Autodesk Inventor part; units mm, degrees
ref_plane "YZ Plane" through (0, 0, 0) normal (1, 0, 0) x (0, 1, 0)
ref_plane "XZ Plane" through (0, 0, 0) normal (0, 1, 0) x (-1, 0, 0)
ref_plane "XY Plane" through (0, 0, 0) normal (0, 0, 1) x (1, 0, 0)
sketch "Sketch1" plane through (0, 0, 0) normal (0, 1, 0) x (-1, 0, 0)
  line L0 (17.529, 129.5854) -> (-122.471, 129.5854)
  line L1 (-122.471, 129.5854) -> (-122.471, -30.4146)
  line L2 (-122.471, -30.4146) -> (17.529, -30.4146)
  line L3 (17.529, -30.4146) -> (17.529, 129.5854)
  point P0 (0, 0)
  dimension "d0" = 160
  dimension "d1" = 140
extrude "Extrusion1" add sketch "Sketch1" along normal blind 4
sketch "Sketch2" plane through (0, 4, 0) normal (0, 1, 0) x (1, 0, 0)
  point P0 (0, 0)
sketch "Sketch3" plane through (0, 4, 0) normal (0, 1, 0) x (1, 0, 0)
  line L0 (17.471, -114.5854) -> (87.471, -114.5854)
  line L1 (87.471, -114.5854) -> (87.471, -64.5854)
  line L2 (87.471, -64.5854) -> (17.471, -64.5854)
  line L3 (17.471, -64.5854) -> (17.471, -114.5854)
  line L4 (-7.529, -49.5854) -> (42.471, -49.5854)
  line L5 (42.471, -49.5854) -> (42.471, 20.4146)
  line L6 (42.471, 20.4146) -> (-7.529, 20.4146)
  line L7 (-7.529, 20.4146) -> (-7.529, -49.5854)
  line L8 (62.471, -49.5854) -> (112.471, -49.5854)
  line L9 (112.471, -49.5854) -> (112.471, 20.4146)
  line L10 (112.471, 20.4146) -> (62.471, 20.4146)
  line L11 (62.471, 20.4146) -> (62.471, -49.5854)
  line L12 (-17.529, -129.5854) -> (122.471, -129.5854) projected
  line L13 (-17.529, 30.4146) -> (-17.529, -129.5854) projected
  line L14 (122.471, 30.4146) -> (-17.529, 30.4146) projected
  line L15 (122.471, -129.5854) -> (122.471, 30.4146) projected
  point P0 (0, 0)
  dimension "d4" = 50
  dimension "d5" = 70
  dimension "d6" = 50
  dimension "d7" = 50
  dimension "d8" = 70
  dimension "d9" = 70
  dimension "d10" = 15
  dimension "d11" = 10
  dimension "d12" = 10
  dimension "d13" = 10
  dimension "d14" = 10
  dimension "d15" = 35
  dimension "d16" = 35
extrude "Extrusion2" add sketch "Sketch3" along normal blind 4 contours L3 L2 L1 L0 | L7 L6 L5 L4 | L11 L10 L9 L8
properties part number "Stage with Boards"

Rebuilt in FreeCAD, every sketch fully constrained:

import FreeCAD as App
import Part
import Sketcher
from FreeCAD import Vector
Q = App.Units.Quantity


def add_polygon(sketch, points):
    """Adds a closed chain of lines whose ends are joined by coincident constraints."""
    first, n = sketch.GeometryCount, len(points)
    for a, b in zip(points, points[1:] + points[:1]):
        sketch.addGeometry(Part.LineSegment(App.Vector(*a, 0), App.Vector(*b, 0)), False)
    for i in range(n):
        sketch.addConstraint(Sketcher.Constraint("Coincident", first + i, 2, first + (i + 1) % n, 1))

doc = App.newDocument("Part")
params = doc.addObject("Spreadsheet::Sheet", "Params")
for row, (alias, value) in enumerate([
    ("sketch1_width", "140 mm"),
    ("sketch1_height", "160 mm"),
    ("pad1_length", "4 mm"),
    ("sketch2_width", "70 mm"),
    ("sketch2_width2", "50 mm"),
    ("pad2_length", "4 mm"),
], start=1):
    params.set(f"A{row}", alias)
    params.set(f"B{row}", "=" + value)
    params.setAlias(f"B{row}", alias)

body = doc.addObject("PartDesign::Body", "Body")

# Sketch on XZ plane
sketch1 = body.newObject("Sketcher::SketchObject", "Sketch")
sketch1.AttachmentSupport = (doc.getObject("XZ_Plane"), [""])
sketch1.MapMode = "FlatFace"
add_polygon(sketch1, [(-17.529, -30.4146), (-17.529, 129.5854), (122.471, 129.5854), (122.471, -30.4146)])  # lines 0-3
sketch1.addConstraint([
    Sketcher.Constraint("Vertical", 0),
    Sketcher.Constraint("Horizontal", 1),
    Sketcher.Constraint("Vertical", 2),
    Sketcher.Constraint("Horizontal", 3),
    Sketcher.Constraint("DistanceX", 1, 1, 1, 2, Q("140 mm")),
    Sketcher.Constraint("DistanceY", 0, 1, 0, 2, Q("160 mm")),
    Sketcher.Constraint("DistanceX", 0, 2, -1, 1, Q("17.529 mm")),
    Sketcher.Constraint("DistanceY", -1, 1, 0, 2, Q("129.5854 mm")),
])
sketch1.setExpression("Constraints[8]", "Params.sketch1_width")
sketch1.setExpression("Constraints[9]", "Params.sketch1_height")
pad1 = body.newObject("PartDesign::Pad", "Pad")
pad1.Profile = sketch1
pad1.setExpression("Length", "Params.pad1_length")
pad1.Reversed = True

# Sketch on XZ plane
sketch2 = body.newObject("Sketcher::SketchObject", "Sketch001")
sketch2.AttachmentSupport = (doc.getObject("XZ_Plane"), [""])
sketch2.MapMode = "FlatFace"
sketch2.AttachmentOffset = App.Placement(Vector(0, 0, -4), App.Rotation())
add_polygon(sketch2, [(17.471, 64.5854), (17.471, 114.5854), (87.471, 114.5854), (87.471, 64.5854)])  # lines 0-3
add_polygon(sketch2, [(-7.529, -20.4146), (-7.529, 49.5854), (42.471, 49.5854), (42.471, -20.4146)])  # lines 4-7
add_polygon(sketch2, [(62.471, -20.4146), (62.471, 49.5854), (112.471, 49.5854), (112.471, -20.4146)])  # lines 8-11
sketch2.addConstraint([
    Sketcher.Constraint("Vertical", 0),
    Sketcher.Constraint("Horizontal", 1),
    Sketcher.Constraint("Vertical", 2),
    Sketcher.Constraint("Horizontal", 3),
    Sketcher.Constraint("Vertical", 4),
    Sketcher.Constraint("Horizontal", 5),
    Sketcher.Constraint("Vertical", 6),
    Sketcher.Constraint("Horizontal", 7),
    Sketcher.Constraint("Vertical", 8),
    Sketcher.Constraint("Horizontal", 9),
    Sketcher.Constraint("Vertical", 10),
    Sketcher.Constraint("Horizontal", 11),
    Sketcher.Constraint("Horizontal", 5, 2, 8, 2),
    Sketcher.Constraint("Horizontal", 7, 2, 10, 2),
    Sketcher.Constraint("Equal", 7, 9),
    Sketcher.Constraint("Equal", 11, 0),
    Sketcher.Constraint("Equal", 3, 4),
    Sketcher.Constraint("DistanceX", 1, 1, 1, 2, Q("70 mm")),
    Sketcher.Constraint("DistanceX", 5, 1, 5, 2, Q("50 mm")),
    Sketcher.Constraint("DistanceY", 4, 2, 3, 2, Q("15 mm")),
    Sketcher.Constraint("DistanceX", 4, 2, 8, 2, Q("70 mm")),
    Sketcher.Constraint("DistanceX", 4, 2, 3, 2, Q("25 mm")),
    Sketcher.Constraint("DistanceX", -1, 1, 0, 2, Q("17.471 mm")),
    Sketcher.Constraint("DistanceY", -1, 1, 0, 2, Q("114.5854 mm")),
])
sketch2.setExpression("Constraints[29]", "Params.sketch2_width")
sketch2.setExpression("Constraints[30]", "Params.sketch2_width2")
pad2 = body.newObject("PartDesign::Pad", "Pad001")
pad2.Profile = sketch2
pad2.setExpression("Length", "Params.pad2_length")
pad2.Reversed = True

doc.recompute()
